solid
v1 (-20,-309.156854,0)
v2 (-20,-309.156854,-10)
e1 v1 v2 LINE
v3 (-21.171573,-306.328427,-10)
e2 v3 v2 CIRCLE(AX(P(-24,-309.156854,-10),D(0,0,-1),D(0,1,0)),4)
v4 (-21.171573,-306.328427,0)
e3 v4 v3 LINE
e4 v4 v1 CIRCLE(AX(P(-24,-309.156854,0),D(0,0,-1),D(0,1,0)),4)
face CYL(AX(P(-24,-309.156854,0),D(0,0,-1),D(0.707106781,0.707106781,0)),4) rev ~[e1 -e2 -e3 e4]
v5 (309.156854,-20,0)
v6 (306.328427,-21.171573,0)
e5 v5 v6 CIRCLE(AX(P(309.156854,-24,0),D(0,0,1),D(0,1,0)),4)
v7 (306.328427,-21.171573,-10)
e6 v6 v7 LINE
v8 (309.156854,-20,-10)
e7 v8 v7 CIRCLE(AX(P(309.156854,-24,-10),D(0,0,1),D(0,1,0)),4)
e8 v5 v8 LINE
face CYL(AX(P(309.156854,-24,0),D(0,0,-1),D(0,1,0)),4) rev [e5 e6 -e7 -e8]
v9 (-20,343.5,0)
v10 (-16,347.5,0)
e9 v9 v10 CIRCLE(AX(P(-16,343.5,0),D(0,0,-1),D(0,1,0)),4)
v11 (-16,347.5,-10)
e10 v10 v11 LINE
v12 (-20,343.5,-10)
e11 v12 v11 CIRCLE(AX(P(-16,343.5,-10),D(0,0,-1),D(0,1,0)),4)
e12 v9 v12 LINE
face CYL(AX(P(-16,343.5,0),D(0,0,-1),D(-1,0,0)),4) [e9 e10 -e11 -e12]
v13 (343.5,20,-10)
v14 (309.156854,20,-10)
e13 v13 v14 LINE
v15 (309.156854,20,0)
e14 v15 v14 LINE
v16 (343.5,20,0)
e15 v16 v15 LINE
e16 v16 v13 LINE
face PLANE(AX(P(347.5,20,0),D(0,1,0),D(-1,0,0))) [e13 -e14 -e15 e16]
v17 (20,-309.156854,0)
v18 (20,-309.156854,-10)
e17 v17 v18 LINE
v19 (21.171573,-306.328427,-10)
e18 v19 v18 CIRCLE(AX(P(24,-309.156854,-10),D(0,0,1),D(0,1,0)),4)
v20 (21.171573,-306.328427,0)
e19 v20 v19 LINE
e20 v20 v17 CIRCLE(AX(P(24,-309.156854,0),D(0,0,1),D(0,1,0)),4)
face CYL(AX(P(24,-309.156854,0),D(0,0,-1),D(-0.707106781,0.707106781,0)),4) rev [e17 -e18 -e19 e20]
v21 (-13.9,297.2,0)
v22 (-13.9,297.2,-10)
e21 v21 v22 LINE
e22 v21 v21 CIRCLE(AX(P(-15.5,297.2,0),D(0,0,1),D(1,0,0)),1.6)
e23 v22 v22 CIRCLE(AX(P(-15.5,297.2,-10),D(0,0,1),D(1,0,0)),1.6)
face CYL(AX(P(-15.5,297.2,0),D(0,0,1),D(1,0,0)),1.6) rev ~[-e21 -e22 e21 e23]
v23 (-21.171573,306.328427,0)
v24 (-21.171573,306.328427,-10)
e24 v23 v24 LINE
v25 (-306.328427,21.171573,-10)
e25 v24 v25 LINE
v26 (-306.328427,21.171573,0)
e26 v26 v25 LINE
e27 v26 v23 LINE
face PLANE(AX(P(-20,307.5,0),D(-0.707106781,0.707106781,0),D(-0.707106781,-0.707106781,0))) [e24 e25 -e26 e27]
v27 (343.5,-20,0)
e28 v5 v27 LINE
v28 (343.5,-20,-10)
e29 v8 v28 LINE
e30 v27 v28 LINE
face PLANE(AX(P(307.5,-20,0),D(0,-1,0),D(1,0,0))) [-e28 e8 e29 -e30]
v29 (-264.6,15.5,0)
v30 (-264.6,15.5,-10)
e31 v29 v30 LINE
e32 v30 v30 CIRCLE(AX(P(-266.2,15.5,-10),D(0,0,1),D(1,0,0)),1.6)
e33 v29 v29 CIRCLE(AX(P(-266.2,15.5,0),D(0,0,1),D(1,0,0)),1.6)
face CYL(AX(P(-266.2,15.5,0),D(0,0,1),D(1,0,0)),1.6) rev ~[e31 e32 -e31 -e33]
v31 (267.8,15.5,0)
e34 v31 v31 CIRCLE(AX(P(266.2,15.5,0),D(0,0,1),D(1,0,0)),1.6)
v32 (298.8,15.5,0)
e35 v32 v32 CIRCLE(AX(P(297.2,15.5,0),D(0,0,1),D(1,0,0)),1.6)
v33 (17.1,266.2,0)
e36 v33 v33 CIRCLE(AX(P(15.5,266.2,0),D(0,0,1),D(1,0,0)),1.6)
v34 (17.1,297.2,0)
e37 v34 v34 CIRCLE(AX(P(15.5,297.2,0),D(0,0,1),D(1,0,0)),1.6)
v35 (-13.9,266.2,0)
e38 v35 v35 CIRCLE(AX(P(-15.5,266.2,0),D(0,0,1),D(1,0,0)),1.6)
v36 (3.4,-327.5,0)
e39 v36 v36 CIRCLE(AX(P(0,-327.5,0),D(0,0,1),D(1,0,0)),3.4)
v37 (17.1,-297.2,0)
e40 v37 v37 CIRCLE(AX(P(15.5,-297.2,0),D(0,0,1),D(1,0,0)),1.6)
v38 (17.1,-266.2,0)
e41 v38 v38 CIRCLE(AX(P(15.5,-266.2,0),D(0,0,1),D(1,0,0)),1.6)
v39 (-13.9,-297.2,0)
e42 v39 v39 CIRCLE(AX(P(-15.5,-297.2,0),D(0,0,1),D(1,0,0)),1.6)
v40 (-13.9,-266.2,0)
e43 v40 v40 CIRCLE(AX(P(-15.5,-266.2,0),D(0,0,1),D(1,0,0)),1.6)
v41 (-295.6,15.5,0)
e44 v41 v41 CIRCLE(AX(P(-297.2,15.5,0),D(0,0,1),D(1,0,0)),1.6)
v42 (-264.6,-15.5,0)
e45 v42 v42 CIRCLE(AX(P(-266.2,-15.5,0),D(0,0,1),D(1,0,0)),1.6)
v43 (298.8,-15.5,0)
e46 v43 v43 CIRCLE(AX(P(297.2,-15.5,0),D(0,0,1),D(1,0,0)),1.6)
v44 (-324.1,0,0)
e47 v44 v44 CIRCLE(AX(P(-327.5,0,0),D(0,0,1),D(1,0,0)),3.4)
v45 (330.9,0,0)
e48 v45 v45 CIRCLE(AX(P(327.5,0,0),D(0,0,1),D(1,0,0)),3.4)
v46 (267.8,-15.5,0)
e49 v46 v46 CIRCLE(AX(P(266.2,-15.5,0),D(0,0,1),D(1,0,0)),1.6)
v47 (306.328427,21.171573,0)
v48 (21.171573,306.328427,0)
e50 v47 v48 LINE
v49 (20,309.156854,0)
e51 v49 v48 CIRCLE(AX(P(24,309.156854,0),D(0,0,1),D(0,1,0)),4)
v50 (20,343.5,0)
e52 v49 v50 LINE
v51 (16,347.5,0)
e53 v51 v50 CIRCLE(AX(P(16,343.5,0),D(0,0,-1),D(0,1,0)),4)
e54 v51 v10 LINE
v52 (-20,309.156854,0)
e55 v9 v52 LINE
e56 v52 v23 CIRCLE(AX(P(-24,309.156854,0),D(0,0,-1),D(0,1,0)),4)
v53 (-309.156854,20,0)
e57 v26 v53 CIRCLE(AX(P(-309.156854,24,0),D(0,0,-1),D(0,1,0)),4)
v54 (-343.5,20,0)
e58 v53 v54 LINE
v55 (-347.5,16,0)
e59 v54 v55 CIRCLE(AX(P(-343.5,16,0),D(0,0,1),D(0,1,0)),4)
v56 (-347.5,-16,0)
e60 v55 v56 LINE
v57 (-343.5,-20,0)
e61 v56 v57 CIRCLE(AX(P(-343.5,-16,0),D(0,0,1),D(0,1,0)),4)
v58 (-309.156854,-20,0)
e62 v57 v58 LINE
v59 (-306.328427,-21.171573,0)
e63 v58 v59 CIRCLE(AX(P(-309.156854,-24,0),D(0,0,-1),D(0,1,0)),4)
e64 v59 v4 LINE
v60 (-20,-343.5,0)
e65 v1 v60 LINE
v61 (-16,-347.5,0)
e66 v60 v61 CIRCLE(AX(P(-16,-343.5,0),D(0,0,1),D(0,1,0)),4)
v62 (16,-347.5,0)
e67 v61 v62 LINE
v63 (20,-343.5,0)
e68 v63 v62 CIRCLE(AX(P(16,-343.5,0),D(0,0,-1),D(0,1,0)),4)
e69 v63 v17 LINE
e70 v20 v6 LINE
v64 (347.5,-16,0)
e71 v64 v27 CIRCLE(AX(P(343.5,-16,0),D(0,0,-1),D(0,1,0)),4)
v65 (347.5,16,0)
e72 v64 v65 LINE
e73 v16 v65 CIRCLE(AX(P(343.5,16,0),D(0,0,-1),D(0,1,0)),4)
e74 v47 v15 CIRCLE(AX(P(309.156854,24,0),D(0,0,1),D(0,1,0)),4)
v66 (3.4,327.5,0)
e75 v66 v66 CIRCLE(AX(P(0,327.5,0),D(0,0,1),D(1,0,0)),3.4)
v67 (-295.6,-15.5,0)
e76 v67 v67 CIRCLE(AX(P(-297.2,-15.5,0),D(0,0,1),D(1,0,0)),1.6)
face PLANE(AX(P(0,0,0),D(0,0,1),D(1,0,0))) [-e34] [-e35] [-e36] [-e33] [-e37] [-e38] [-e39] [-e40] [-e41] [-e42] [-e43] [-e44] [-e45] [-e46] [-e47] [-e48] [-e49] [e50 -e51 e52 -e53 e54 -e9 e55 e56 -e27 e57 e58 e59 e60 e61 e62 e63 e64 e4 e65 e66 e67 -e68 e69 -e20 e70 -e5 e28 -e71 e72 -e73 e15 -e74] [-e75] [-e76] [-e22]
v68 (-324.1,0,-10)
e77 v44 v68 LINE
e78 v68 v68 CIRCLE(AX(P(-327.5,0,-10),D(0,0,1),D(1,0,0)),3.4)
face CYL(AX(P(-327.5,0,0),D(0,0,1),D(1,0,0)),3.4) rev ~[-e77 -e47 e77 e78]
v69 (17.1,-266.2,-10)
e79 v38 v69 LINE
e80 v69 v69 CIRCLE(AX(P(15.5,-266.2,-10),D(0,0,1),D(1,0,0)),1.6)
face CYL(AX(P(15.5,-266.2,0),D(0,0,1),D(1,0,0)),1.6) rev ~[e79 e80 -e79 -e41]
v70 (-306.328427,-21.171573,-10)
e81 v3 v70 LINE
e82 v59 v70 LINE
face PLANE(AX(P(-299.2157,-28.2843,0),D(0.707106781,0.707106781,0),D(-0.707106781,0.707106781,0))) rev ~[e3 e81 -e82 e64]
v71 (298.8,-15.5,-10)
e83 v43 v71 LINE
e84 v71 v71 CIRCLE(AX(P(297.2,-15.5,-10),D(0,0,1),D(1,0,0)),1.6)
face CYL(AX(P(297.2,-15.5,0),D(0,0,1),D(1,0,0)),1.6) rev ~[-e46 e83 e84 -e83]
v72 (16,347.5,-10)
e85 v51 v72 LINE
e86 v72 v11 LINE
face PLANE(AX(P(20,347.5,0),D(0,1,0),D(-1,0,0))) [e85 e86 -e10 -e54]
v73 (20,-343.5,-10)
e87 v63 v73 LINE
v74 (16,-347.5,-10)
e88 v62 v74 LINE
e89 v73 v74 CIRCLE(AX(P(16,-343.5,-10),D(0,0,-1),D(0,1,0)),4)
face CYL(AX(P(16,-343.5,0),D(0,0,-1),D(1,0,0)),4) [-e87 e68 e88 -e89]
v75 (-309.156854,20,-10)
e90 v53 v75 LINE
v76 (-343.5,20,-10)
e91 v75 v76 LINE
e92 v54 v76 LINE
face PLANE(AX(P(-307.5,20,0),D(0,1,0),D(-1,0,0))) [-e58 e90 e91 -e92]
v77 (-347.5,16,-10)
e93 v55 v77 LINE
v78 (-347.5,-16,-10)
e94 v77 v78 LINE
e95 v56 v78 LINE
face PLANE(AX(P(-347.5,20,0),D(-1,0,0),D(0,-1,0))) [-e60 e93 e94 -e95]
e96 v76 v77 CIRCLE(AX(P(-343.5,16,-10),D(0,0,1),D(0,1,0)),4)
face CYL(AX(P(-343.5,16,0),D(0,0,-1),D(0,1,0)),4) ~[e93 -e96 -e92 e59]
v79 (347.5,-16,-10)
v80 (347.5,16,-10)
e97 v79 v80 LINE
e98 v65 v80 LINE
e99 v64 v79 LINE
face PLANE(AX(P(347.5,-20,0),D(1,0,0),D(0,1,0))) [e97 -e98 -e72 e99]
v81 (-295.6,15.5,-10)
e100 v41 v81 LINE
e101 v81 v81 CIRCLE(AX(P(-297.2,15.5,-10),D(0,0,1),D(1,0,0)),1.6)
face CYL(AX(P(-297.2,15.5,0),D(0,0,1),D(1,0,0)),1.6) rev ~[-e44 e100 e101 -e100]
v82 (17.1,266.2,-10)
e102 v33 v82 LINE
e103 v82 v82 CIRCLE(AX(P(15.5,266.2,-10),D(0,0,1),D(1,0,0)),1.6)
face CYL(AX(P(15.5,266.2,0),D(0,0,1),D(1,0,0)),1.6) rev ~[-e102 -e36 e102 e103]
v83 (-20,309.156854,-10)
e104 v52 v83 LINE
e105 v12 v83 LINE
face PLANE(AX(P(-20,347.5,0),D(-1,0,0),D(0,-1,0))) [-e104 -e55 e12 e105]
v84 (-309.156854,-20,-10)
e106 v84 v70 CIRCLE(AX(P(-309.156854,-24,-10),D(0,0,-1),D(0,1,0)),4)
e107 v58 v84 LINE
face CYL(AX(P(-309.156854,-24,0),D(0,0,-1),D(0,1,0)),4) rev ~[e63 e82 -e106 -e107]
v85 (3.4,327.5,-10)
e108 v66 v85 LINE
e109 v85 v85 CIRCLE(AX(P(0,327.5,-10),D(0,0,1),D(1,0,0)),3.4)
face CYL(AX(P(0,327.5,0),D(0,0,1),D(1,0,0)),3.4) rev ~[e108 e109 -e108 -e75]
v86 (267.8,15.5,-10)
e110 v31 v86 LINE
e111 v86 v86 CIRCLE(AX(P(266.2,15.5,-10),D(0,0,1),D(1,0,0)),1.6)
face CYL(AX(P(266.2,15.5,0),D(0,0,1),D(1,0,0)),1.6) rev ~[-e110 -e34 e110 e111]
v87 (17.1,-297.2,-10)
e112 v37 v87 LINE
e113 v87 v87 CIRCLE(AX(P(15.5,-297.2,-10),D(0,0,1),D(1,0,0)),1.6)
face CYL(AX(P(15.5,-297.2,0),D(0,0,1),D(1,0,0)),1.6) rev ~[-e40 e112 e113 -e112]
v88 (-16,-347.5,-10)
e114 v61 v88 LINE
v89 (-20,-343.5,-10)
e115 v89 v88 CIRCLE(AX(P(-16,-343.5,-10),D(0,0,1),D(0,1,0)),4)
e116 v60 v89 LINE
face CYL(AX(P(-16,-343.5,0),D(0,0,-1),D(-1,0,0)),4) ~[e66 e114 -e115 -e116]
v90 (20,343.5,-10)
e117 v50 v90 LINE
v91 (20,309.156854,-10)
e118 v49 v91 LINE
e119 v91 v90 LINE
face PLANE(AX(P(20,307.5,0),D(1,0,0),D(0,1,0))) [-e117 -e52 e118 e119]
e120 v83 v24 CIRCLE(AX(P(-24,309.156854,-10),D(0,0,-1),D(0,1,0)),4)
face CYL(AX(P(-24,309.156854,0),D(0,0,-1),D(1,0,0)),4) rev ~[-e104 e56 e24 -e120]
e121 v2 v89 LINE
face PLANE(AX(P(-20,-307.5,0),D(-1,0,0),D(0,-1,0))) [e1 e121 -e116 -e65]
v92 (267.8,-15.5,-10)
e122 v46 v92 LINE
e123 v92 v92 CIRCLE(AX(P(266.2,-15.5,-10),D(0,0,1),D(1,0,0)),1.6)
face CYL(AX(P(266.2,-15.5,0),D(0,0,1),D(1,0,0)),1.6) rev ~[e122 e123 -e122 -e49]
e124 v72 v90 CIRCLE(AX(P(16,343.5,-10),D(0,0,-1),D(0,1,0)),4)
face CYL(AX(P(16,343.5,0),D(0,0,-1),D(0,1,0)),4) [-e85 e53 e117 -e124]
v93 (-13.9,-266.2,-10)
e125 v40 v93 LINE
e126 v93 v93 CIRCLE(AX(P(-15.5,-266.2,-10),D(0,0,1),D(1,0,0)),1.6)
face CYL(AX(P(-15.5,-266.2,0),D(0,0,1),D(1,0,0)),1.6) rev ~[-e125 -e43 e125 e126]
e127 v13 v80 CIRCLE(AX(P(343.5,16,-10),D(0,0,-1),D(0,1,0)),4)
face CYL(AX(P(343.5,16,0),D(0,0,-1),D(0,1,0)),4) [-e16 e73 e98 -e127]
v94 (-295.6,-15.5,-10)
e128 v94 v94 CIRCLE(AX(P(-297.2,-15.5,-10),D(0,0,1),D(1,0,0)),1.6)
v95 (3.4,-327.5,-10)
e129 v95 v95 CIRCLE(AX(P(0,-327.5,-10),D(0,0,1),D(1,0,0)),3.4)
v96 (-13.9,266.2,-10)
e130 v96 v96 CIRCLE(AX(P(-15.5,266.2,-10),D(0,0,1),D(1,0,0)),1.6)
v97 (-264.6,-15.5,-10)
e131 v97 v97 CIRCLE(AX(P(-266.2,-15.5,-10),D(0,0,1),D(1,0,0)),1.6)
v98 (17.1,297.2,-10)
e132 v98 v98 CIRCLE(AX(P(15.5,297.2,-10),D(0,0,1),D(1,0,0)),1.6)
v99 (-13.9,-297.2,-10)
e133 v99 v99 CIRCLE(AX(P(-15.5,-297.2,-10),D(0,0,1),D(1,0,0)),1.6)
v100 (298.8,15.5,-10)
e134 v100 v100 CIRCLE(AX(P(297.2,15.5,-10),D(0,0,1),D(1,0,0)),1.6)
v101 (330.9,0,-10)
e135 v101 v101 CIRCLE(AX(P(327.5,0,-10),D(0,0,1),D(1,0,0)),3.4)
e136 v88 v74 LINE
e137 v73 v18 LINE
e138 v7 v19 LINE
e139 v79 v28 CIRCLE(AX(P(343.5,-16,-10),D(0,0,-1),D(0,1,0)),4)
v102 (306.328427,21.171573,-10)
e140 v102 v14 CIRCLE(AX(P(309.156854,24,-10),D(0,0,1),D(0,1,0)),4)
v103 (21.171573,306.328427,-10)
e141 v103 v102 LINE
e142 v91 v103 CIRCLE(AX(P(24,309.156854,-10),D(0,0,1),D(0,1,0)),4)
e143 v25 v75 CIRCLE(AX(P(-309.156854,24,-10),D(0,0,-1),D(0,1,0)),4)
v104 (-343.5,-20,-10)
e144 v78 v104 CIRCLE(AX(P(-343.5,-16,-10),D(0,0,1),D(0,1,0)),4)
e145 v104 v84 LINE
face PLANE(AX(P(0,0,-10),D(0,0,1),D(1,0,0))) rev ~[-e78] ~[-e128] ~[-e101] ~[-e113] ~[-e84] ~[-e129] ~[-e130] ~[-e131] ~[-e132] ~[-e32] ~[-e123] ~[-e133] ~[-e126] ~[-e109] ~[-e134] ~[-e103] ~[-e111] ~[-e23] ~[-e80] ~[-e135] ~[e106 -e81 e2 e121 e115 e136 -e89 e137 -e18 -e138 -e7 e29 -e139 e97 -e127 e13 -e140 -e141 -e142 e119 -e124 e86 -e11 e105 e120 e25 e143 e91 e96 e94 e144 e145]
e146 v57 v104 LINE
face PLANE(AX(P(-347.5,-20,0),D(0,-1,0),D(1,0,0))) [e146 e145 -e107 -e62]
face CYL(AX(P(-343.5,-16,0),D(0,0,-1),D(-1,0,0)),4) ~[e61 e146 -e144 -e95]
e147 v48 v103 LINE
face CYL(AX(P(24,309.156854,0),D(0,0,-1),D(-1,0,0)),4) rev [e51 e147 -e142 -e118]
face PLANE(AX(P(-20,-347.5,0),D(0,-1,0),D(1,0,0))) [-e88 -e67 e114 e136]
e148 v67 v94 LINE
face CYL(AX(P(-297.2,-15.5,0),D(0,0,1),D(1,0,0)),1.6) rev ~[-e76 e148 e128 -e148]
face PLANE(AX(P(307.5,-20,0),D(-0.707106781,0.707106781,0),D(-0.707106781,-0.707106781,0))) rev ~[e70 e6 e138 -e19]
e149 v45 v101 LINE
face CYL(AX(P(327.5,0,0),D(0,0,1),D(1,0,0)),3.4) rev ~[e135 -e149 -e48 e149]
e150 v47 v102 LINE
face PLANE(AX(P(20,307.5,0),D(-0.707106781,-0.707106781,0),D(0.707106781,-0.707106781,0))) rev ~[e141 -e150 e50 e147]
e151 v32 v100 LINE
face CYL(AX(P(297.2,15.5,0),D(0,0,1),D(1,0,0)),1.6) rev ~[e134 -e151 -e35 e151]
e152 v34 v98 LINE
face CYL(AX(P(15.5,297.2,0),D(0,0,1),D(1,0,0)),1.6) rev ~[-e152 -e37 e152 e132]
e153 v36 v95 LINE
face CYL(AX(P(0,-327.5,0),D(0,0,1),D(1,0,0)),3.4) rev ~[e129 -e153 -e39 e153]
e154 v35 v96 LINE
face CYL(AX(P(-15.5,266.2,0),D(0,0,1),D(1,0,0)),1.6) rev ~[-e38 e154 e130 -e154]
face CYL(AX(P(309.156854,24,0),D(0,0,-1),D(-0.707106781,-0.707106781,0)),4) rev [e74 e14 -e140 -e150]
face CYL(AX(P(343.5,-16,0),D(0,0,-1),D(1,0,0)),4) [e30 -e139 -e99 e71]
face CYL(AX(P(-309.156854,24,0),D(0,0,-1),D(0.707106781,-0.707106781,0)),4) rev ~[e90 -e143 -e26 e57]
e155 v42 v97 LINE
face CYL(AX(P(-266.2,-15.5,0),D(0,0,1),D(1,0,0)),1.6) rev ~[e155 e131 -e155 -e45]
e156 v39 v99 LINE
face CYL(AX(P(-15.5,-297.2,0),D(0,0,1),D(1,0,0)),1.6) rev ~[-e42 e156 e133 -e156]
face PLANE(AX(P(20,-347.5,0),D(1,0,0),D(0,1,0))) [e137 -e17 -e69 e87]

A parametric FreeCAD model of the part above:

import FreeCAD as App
import Part
import Sketcher
from FreeCAD import Vector


def edges_at(feature, points):
    """Names of the edges that pass closest to the given points."""
    edges = feature.Shape.Edges
    near = lambda p: min(range(len(edges)), key=lambda i: edges[i].distToShape(Part.Vertex(*p))[0])
    return sorted({f"Edge{near(p) + 1}" for p in points})


def add_polygon(sketch, points):
    """Adds a closed chain of lines whose ends are joined by coincident constraints."""
    first, n = sketch.GeometryCount, len(points)
    for a, b in zip(points, points[1:] + points[:1]):
        sketch.addGeometry(Part.LineSegment(App.Vector(*a, 0), App.Vector(*b, 0)), False)
    for i in range(n):
        sketch.addConstraint(Sketcher.Constraint("Coincident", first + i, 2, first + (i + 1) % n, 1))

doc = App.newDocument("Part")
body = doc.addObject("PartDesign::Body", "Body")

sketch1 = body.newObject("Sketcher::SketchObject", "Sketch")
sketch1.AttachmentSupport = (doc.getObject("XY_Plane"), [""])
sketch1.MapMode = "FlatFace"
add_polygon(sketch1, [(-20, 347.5), (-20, 307.5), (-307.5, 20), (-347.5, 20), (-347.5, -20), (-307.5, -20), (-20, -307.5), (-20, -347.5), (20, -347.5), (20, -307.5), (307.5, -20), (347.5, -20), (347.5, 20), (307.5, 20), (20, 307.5), (20, 347.5)])
sketch1.addGeometry(Part.Circle(Vector(0, 327.5, 0), Vector(0, 0, 1), 3.4), False)
sketch1.addGeometry(Part.Circle(Vector(327.5, 0, 0), Vector(0, 0, 1), 3.4), False)
sketch1.addGeometry(Part.Circle(Vector(-327.5, 0, 0), Vector(0, 0, 1), 3.4), False)
sketch1.addGeometry(Part.Circle(Vector(0, -327.5, 0), Vector(0, 0, 1), 3.4), False)
sketch1.addConstraint([
    Sketcher.Constraint("Vertical", 0),
    Sketcher.Constraint("Horizontal", 2),
    Sketcher.Constraint("Vertical", 3),
    Sketcher.Constraint("Horizontal", 4),
    Sketcher.Constraint("Vertical", 6),
    Sketcher.Constraint("Horizontal", 7),
    Sketcher.Constraint("Vertical", 8),
    Sketcher.Constraint("Horizontal", 10),
    Sketcher.Constraint("Vertical", 11),
    Sketcher.Constraint("Horizontal", 12),
    Sketcher.Constraint("Vertical", 14),
    Sketcher.Constraint("Horizontal", 15),
    Sketcher.Constraint("Equal", 16, 17),
    Sketcher.Constraint("Equal", 17, 18),
    Sketcher.Constraint("Equal", 18, 19),
    Sketcher.Constraint("Symmetric", 17, 3, 18, 3, -1, 1),
    Sketcher.Constraint("Symmetric", 16, 3, 19, 3, -1, 1),
    Sketcher.Constraint("Symmetric", 0, 2, 8, 2, -1, 1),
    Sketcher.Constraint("Symmetric", 1, 2, 9, 2, -1, 1),
    Sketcher.Constraint("Symmetric", 3, 2, 11, 2, -1, 1),
    Sketcher.Constraint("Symmetric", 5, 2, 13, 2, -1, 1),
    Sketcher.Constraint("Symmetric", 5, 2, 8, 2, -2),
    Sketcher.Constraint("Symmetric", 4, 2, 9, 2, -2),
    Sketcher.Constraint("PointOnObject", 16, 3, -2),
    Sketcher.Constraint("PointOnObject", 17, 3, -1),
    Sketcher.Constraint("Perpendicular", 1, 5),
    Sketcher.Constraint("Perpendicular", 9, 13),
    Sketcher.Constraint("Equal", 4, 7),
    Sketcher.Constraint("Equal", 15, 0),
    Sketcher.Constraint("Equal", 0, 3),
    Sketcher.Constraint("Equal", 3, 6),
    Sketcher.Constraint("Diameter", 16, 6.8),
    Sketcher.Constraint("DistanceX", 2, 2, 2, 1, 40.0),
    Sketcher.Constraint("DistanceX", 18, 3, 17, 3, 655.0),
    Sketcher.Constraint("DistanceY", 19, 3, 16, 3, 655.0),
    Sketcher.Constraint("DistanceY", 0, 2, 16, 3, 20.0),
])
pad1 = body.newObject("PartDesign::Pad", "Pad")
pad1.Profile = sketch1
pad1.Length = 10
pad1.Reversed = True
doc.recompute()

fillet = body.newObject("PartDesign::Fillet", "Fillet")
fillet.Base = (pad1, edges_at(pad1, [
    (-307.5, 20, -5),
    (-347.5, 20, -5),
    (-347.5, -20, -5),
    (-20, -347.5, -5),
    (20, -347.5, -5),
    (-20, -307.5, -5),
    (-20, 347.5, -5),
    (307.5, -20, -5),
    (347.5, -20, -5),
    (347.5, 20, -5),
    (20, 307.5, -5),
    (20, 347.5, -5),
    (307.5, 20, -5),
    (-20, 307.5, -5),
    (-307.5, -20, -5),
    (20, -307.5, -5),
]))
fillet.Radius = 4

sketch2 = body.newObject("Sketcher::SketchObject", "Sketch001")
sketch2.AttachmentSupport = (doc.getObject("XY_Plane"), [""])
sketch2.MapMode = "FlatFace"
sketch2.addGeometry([
    Part.Circle(Vector(297.2, 15.5, 0), Vector(0, 0, 1), 1.6),
    Part.Circle(Vector(266.2, 15.5, 0), Vector(0, 0, 1), 1.6),
    Part.Circle(Vector(266.2, -15.5, 0), Vector(0, 0, 1), 1.6),
    Part.Circle(Vector(297.2, -15.5, 0), Vector(0, 0, 1), 1.6),
    Part.Circle(Vector(-15.5, 266.2, 0), Vector(0, 0, 1), 1.6),
    Part.Circle(Vector(-15.5, 297.2, 0), Vector(0, 0, 1), 1.6),
    Part.Circle(Vector(15.5, 297.2, 0), Vector(0, 0, 1), 1.6),
    Part.Circle(Vector(15.5, 266.2, 0), Vector(0, 0, 1), 1.6),
    Part.Circle(Vector(-266.2, -15.5, 0), Vector(0, 0, 1), 1.6),
    Part.Circle(Vector(-297.2, -15.5, 0), Vector(0, 0, 1), 1.6),
    Part.Circle(Vector(-297.2, 15.5, 0), Vector(0, 0, 1), 1.6),
    Part.Circle(Vector(-266.2, 15.5, 0), Vector(0, 0, 1), 1.6),
    Part.Circle(Vector(15.5, -266.2, 0), Vector(0, 0, 1), 1.6),
    Part.Circle(Vector(15.5, -297.2, 0), Vector(0, 0, 1), 1.6),
    Part.Circle(Vector(-15.5, -297.2, 0), Vector(0, 0, 1), 1.6),
    Part.Circle(Vector(-15.5, -266.2, 0), Vector(0, 0, 1), 1.6),
], False)
sketch2.addConstraint([
    Sketcher.Constraint("Equal", 0, 1),
    Sketcher.Constraint("Equal", 1, 2),
    Sketcher.Constraint("Equal", 2, 3),
    Sketcher.Constraint("Equal", 3, 4),
    Sketcher.Constraint("Equal", 4, 5),
    Sketcher.Constraint("Equal", 5, 6),
    Sketcher.Constraint("Equal", 6, 7),
    Sketcher.Constraint("Equal", 7, 8),
    Sketcher.Constraint("Equal", 8, 9),
    Sketcher.Constraint("Equal", 9, 10),
    Sketcher.Constraint("Equal", 10, 11),
    Sketcher.Constraint("Equal", 11, 12),
    Sketcher.Constraint("Equal", 12, 13),
    Sketcher.Constraint("Equal", 13, 14),
    Sketcher.Constraint("Equal", 14, 15),
    Sketcher.Constraint("Symmetric", 1, 3, 8, 3, -1, 1),
    Sketcher.Constraint("Symmetric", 0, 3, 9, 3, -1, 1),
    Sketcher.Constraint("Symmetric", 3, 3, 10, 3, -1, 1),
    Sketcher.Constraint("Symmetric", 2, 3, 11, 3, -1, 1),
    Sketcher.Constraint("Symmetric", 4, 3, 12, 3, -1, 1),
    Sketcher.Constraint("Symmetric", 5, 3, 13, 3, -1, 1),
    Sketcher.Constraint("Symmetric", 6, 3, 14, 3, -1, 1),
    Sketcher.Constraint("Symmetric", 7, 3, 15, 3, -1, 1),
    Sketcher.Constraint("Symmetric", 5, 3, 6, 3, -2),
    Sketcher.Constraint("Symmetric", 4, 3, 7, 3, -2),
    Sketcher.Constraint("Symmetric", 2, 3, 8, 3, -2),
    Sketcher.Constraint("Symmetric", 3, 3, 9, 3, -2),
    Sketcher.Constraint("Horizontal", 0, 3, 1, 3),
    Sketcher.Constraint("Vertical", 4, 3, 5, 3),
    Sketcher.Constraint("Diameter", 0, 3.2),
    Sketcher.Constraint("DistanceX", 1, 3, 0, 3, 31.0),
    Sketcher.Constraint("DistanceY", 2, 3, 1, 3, 31.0),
    Sketcher.Constraint("DistanceY", 4, 3, 5, 3, 31.0),
    Sketcher.Constraint("DistanceX", 5, 3, 6, 3, 31.0),
    Sketcher.Constraint("DistanceX", -1, 1, 0, 3, 297.2),
    Sketcher.Constraint("DistanceY", -1, 1, 4, 3, 266.2),
])
pocket1 = body.newObject("PartDesign::Pocket", "Pocket")
pocket1.Profile = sketch2
pocket1.Length = 10

doc.recompute()
